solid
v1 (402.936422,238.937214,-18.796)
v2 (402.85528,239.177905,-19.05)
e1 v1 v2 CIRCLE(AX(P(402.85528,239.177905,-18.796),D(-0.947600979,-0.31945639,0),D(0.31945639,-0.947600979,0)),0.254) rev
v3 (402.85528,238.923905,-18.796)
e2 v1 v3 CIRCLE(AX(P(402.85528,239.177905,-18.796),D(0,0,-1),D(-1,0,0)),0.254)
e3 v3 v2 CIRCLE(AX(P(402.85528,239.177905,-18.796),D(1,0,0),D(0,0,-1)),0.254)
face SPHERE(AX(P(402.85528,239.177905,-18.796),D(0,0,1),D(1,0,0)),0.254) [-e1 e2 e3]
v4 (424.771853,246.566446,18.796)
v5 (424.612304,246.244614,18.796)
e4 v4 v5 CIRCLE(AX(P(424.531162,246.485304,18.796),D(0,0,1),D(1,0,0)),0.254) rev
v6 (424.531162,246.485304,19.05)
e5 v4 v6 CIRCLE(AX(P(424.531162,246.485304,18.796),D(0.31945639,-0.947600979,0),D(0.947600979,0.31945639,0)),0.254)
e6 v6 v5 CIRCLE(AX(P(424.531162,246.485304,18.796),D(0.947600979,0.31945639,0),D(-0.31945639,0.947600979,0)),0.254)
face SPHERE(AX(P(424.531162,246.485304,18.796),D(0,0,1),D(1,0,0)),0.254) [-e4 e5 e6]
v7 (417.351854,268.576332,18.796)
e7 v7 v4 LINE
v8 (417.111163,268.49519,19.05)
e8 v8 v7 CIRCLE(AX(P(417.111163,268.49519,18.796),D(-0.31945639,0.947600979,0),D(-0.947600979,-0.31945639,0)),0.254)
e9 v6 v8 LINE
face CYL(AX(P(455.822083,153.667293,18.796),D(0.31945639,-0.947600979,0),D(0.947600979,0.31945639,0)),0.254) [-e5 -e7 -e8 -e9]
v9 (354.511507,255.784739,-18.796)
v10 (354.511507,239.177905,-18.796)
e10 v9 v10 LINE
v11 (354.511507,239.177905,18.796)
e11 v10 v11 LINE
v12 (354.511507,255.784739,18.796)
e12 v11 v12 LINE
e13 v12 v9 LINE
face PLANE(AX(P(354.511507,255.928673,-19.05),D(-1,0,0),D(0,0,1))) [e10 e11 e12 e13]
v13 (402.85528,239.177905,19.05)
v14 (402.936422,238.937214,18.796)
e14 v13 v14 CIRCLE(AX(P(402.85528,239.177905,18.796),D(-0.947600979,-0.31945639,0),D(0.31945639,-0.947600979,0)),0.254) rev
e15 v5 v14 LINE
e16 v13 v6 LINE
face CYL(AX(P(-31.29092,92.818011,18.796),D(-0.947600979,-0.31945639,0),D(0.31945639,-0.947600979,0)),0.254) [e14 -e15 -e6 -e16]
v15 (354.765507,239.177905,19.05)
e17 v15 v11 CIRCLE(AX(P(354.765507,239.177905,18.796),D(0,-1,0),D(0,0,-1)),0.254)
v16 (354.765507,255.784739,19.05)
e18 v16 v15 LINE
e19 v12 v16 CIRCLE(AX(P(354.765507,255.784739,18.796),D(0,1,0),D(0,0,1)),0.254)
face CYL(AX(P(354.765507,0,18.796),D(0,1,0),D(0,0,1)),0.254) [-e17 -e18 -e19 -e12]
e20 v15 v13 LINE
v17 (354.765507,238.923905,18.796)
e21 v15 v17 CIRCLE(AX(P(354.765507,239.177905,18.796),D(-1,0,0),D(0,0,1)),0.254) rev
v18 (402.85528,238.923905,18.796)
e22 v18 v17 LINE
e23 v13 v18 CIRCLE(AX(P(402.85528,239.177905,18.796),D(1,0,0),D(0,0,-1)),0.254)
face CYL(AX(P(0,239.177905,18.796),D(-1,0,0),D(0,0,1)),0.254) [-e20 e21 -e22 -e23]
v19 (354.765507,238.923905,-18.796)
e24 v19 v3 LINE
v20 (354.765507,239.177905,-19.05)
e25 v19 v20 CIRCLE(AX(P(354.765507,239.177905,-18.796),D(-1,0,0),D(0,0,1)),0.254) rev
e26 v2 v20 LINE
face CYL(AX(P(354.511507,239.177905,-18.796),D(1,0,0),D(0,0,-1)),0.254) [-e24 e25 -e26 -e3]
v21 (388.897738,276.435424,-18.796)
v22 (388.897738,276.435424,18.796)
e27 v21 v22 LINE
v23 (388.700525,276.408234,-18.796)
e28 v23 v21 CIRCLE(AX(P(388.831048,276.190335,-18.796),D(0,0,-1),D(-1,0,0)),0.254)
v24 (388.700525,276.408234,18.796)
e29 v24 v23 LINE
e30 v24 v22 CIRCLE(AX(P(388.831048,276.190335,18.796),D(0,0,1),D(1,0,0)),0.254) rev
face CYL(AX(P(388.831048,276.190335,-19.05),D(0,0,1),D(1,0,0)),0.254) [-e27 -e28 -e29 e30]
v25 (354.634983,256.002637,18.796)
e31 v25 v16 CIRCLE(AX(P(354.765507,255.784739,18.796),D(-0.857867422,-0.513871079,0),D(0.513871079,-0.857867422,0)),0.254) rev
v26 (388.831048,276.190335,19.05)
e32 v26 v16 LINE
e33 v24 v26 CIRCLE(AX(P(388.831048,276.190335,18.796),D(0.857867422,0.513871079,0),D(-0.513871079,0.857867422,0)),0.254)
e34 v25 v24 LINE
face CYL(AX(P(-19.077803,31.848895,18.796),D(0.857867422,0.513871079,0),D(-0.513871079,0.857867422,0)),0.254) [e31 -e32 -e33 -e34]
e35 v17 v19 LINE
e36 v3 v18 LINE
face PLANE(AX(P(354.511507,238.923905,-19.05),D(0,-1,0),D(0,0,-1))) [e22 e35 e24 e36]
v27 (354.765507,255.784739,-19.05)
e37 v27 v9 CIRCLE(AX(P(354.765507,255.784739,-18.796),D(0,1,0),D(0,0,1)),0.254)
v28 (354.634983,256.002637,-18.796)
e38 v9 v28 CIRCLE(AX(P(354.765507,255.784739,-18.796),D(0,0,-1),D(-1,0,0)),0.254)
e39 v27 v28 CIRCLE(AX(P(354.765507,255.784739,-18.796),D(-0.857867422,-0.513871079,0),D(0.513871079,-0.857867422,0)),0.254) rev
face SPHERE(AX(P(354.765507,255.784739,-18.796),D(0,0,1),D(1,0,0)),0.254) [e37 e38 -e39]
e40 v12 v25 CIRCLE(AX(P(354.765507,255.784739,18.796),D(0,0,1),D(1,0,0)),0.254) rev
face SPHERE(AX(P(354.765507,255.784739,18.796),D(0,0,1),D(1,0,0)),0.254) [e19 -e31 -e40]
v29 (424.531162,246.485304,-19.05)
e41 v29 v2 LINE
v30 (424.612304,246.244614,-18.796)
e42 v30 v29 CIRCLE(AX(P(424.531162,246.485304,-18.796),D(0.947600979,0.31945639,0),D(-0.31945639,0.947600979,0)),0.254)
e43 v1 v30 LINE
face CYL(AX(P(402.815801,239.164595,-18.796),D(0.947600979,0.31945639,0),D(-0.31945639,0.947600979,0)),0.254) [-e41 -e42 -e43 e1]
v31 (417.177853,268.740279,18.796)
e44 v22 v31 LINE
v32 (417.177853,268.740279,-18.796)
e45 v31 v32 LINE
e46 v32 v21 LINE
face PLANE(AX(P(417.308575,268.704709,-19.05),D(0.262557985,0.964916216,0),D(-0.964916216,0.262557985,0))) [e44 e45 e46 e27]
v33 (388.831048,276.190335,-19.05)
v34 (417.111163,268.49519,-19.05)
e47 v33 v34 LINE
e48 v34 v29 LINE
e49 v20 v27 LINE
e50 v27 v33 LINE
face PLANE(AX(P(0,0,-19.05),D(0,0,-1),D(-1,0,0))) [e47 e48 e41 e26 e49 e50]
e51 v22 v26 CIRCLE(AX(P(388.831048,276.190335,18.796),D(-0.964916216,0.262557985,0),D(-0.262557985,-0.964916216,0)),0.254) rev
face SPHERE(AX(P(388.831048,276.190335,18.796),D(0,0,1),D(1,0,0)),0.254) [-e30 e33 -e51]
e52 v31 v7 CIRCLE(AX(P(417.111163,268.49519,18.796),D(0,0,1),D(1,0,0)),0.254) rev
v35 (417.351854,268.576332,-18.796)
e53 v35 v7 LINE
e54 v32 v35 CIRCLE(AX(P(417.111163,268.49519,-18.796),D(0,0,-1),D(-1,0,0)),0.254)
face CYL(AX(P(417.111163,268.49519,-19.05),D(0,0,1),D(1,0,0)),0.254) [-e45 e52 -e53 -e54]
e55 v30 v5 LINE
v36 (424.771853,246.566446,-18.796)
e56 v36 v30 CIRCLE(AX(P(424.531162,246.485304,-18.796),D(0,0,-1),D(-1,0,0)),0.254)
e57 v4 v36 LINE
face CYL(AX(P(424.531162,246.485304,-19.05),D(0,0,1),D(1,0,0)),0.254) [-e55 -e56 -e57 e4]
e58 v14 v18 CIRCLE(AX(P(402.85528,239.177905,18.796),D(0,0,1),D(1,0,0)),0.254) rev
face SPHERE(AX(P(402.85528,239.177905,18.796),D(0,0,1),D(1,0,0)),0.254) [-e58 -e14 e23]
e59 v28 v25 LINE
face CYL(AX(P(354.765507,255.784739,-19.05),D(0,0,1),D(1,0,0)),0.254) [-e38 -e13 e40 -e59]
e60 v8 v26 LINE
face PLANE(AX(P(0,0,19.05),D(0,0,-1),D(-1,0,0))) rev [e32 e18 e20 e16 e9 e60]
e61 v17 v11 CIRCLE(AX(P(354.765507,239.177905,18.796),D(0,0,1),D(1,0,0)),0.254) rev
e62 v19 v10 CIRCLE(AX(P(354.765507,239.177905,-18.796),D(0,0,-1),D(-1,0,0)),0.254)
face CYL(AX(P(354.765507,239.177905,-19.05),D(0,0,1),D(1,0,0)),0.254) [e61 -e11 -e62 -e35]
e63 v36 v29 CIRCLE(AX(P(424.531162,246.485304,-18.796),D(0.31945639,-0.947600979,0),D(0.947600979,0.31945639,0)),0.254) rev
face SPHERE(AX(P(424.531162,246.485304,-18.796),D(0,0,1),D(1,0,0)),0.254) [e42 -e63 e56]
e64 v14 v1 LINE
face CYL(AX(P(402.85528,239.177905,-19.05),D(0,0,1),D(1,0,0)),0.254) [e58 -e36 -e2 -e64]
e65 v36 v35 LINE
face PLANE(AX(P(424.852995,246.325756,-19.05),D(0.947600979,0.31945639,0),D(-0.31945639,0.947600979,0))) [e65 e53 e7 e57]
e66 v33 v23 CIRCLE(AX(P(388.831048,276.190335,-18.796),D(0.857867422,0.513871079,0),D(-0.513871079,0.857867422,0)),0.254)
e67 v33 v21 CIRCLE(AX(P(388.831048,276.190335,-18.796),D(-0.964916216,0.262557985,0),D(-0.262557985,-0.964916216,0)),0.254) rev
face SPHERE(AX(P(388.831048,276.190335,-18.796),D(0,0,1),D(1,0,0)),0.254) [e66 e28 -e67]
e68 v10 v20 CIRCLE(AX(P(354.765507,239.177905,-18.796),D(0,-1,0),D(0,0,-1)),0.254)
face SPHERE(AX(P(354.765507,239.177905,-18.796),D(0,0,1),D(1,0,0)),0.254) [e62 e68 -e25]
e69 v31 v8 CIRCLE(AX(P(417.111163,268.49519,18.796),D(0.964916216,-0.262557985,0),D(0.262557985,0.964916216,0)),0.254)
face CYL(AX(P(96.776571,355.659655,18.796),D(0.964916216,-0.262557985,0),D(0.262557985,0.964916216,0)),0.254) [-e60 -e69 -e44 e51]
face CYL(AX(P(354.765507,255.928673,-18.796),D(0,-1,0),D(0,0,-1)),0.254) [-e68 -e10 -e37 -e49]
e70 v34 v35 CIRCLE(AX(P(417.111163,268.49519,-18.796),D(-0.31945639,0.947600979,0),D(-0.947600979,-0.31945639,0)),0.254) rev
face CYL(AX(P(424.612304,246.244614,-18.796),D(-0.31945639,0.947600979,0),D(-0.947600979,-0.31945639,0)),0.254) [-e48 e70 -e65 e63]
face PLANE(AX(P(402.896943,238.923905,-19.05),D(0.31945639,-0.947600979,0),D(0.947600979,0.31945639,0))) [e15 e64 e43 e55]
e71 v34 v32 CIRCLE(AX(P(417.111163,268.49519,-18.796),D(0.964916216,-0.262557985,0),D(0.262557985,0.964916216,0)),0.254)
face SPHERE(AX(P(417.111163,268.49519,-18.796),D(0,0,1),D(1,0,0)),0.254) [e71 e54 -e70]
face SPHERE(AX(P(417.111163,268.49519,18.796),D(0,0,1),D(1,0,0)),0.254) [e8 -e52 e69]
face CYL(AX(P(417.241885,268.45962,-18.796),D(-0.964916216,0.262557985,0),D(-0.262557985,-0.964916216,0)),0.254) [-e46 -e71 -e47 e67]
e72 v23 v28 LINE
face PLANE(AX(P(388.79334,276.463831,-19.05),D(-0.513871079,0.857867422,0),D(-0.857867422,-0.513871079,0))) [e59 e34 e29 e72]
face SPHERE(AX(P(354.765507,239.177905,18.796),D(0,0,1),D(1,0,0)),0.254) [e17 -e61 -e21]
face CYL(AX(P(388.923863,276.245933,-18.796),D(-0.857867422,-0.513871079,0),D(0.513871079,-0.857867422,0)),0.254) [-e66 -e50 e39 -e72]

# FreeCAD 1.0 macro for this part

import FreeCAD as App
import Part
import Sketcher
Q = App.Units.Quantity


def add_polygon(sketch, points):
    """Adds a closed chain of lines whose ends are joined by coincident constraints."""
    first, n = sketch.GeometryCount, len(points)
    for a, b in zip(points, points[1:] + points[:1]):
        sketch.addGeometry(Part.LineSegment(App.Vector(*a, 0), App.Vector(*b, 0)), False)
    for i in range(n):
        sketch.addConstraint(Sketcher.Constraint("Coincident", first + i, 2, first + (i + 1) % n, 1))

doc = App.newDocument("Part")
body = doc.addObject("PartDesign::Body", "Body")

sketch1 = doc.addObject("Sketcher::SketchObject", "Sketch")
body.addObject(sketch1)
sketch1.AttachmentSupport = (doc.XY_Plane, [""])
sketch1.MapMode = "FlatFace"
add_polygon(sketch1, [(389, 276), (355, 256), (355, 239), (403, 239), (425, 246), (417, 269)])
sketch1.addConstraint(Sketcher.Constraint("Vertical", 1))
sketch1.addConstraint(Sketcher.Constraint("Horizontal", 2))
sketch1.addConstraint(Sketcher.Constraint("Perpendicular", 3, 4))
sketch1.addConstraint(Sketcher.Constraint("DistanceY", 1, 2, 1, 1, Q("17.004769 mm")))
sketch1.addConstraint(Sketcher.Constraint("Distance", 0, Q("39.961692 mm")))
sketch1.addConstraint(Sketcher.Constraint("Distance", 4, Q("23.616431 mm")))
sketch1.addConstraint(Sketcher.Constraint("DistanceX", 2, 1, 2, 2, Q("48.385436 mm")))
sketch1.addConstraint(Sketcher.Constraint("DistanceY", -1, 1, 4, 2, Q("268.704709 mm")))
sketch1.addConstraint(Sketcher.Constraint("DistanceX", -1, 1, 5, 2, Q("388.79334 mm")))
sketch1.addConstraint(Sketcher.Constraint("DistanceY", -1, 1, 5, 2, Q("276.463831 mm")))
sketch1.addConstraint(Sketcher.Constraint("DistanceY", 2, 2, 3, 2, Q("7.401851 mm")))
sketch1.addConstraint(Sketcher.Constraint("DistanceX", 1, 2, 3, 2, Q("70.341488 mm")))
pad1 = doc.addObject("PartDesign::Pad", "Pad")
body.addObject(pad1)
pad1.Profile = sketch1
pad1.Type = "TwoLengths"
pad1.Length = Q("0.75 in")
pad1.Length2 = Q("0.75 in")
doc.recompute()

fillet = doc.addObject("PartDesign::Fillet", "Fillet")
body.addObject(fillet)
fillet.Base = (pad1, ["Edge1"])
fillet.UseAllEdges = True
fillet.Radius = Q("0.01 in")

doc.recompute()
